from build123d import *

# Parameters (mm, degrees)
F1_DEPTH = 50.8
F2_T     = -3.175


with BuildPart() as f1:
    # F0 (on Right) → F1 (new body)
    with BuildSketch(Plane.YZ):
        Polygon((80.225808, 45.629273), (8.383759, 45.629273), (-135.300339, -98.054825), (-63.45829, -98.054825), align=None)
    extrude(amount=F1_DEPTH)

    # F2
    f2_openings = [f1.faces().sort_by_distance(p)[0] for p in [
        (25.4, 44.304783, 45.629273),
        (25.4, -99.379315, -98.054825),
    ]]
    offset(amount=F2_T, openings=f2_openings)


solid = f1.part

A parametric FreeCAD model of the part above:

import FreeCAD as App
import Part
import Sketcher
Q = App.Units.Quantity


def faces_at(feature, points):
    """Names of the faces that lie closest to the given points."""
    faces = feature.Shape.Faces
    near = lambda p: min(range(len(faces)), key=lambda i: faces[i].distToShape(Part.Vertex(*p))[0])
    return sorted({f"Face{near(p) + 1}" for p in points})


def add_polygon(sketch, points):
    """Adds a closed chain of lines whose ends are joined by coincident constraints."""
    first, n = sketch.GeometryCount, len(points)
    for a, b in zip(points, points[1:] + points[:1]):
        sketch.addGeometry(Part.LineSegment(App.Vector(*a, 0), App.Vector(*b, 0)), False)
    for i in range(n):
        sketch.addConstraint(Sketcher.Constraint("Coincident", first + i, 2, first + (i + 1) % n, 1))

doc = App.newDocument("Part")
body = doc.addObject("PartDesign::Body", "Body")

# Sketch on YZ plane
sketch1 = doc.addObject("Sketcher::SketchObject", "Sketch")
body.addObject(sketch1)
sketch1.AttachmentSupport = (doc.YZ_Plane, [""])
sketch1.MapMode = "FlatFace"
add_polygon(sketch1, [(80, 46), (8, 46), (-135, -98), (-63, -98)])  # lines 0-3
sketch1.addConstraint(Sketcher.Constraint("Horizontal", 0))
sketch1.addConstraint(Sketcher.Constraint("Horizontal", 2))
sketch1.addConstraint(Sketcher.Constraint("Parallel", 1, 3))
sketch1.addConstraint(Sketcher.Constraint("Distance", 1, Q("8 in")))
sketch1.addConstraint(Sketcher.Constraint("Angle", 1, Q("-135 deg")))
sketch1.addConstraint(Sketcher.Constraint("DistanceX", 0, 2, 0, 1, Q("71.842049 mm")))
sketch1.addConstraint(Sketcher.Constraint("DistanceX", -1, 1, 0, 2, Q("8.383759 mm")))
sketch1.addConstraint(Sketcher.Constraint("DistanceY", -1, 1, 0, 2, Q("45.629273 mm")))
pad1 = doc.addObject("PartDesign::Pad", "Pad")
body.addObject(pad1)
pad1.Profile = sketch1
pad1.Length = Q("2 in")
doc.recompute()

thickness = doc.addObject("PartDesign::Thickness", "Thickness")
body.addObject(thickness)
thickness.Base = (pad1, faces_at(pad1, [(25.4, 44.305, 45.629), (25.4, -99.379, -98.055)]))
thickness.Value = Q("0.125 in")
thickness.Reversed = True
thickness.Join = "Arc"

doc.recompute()
